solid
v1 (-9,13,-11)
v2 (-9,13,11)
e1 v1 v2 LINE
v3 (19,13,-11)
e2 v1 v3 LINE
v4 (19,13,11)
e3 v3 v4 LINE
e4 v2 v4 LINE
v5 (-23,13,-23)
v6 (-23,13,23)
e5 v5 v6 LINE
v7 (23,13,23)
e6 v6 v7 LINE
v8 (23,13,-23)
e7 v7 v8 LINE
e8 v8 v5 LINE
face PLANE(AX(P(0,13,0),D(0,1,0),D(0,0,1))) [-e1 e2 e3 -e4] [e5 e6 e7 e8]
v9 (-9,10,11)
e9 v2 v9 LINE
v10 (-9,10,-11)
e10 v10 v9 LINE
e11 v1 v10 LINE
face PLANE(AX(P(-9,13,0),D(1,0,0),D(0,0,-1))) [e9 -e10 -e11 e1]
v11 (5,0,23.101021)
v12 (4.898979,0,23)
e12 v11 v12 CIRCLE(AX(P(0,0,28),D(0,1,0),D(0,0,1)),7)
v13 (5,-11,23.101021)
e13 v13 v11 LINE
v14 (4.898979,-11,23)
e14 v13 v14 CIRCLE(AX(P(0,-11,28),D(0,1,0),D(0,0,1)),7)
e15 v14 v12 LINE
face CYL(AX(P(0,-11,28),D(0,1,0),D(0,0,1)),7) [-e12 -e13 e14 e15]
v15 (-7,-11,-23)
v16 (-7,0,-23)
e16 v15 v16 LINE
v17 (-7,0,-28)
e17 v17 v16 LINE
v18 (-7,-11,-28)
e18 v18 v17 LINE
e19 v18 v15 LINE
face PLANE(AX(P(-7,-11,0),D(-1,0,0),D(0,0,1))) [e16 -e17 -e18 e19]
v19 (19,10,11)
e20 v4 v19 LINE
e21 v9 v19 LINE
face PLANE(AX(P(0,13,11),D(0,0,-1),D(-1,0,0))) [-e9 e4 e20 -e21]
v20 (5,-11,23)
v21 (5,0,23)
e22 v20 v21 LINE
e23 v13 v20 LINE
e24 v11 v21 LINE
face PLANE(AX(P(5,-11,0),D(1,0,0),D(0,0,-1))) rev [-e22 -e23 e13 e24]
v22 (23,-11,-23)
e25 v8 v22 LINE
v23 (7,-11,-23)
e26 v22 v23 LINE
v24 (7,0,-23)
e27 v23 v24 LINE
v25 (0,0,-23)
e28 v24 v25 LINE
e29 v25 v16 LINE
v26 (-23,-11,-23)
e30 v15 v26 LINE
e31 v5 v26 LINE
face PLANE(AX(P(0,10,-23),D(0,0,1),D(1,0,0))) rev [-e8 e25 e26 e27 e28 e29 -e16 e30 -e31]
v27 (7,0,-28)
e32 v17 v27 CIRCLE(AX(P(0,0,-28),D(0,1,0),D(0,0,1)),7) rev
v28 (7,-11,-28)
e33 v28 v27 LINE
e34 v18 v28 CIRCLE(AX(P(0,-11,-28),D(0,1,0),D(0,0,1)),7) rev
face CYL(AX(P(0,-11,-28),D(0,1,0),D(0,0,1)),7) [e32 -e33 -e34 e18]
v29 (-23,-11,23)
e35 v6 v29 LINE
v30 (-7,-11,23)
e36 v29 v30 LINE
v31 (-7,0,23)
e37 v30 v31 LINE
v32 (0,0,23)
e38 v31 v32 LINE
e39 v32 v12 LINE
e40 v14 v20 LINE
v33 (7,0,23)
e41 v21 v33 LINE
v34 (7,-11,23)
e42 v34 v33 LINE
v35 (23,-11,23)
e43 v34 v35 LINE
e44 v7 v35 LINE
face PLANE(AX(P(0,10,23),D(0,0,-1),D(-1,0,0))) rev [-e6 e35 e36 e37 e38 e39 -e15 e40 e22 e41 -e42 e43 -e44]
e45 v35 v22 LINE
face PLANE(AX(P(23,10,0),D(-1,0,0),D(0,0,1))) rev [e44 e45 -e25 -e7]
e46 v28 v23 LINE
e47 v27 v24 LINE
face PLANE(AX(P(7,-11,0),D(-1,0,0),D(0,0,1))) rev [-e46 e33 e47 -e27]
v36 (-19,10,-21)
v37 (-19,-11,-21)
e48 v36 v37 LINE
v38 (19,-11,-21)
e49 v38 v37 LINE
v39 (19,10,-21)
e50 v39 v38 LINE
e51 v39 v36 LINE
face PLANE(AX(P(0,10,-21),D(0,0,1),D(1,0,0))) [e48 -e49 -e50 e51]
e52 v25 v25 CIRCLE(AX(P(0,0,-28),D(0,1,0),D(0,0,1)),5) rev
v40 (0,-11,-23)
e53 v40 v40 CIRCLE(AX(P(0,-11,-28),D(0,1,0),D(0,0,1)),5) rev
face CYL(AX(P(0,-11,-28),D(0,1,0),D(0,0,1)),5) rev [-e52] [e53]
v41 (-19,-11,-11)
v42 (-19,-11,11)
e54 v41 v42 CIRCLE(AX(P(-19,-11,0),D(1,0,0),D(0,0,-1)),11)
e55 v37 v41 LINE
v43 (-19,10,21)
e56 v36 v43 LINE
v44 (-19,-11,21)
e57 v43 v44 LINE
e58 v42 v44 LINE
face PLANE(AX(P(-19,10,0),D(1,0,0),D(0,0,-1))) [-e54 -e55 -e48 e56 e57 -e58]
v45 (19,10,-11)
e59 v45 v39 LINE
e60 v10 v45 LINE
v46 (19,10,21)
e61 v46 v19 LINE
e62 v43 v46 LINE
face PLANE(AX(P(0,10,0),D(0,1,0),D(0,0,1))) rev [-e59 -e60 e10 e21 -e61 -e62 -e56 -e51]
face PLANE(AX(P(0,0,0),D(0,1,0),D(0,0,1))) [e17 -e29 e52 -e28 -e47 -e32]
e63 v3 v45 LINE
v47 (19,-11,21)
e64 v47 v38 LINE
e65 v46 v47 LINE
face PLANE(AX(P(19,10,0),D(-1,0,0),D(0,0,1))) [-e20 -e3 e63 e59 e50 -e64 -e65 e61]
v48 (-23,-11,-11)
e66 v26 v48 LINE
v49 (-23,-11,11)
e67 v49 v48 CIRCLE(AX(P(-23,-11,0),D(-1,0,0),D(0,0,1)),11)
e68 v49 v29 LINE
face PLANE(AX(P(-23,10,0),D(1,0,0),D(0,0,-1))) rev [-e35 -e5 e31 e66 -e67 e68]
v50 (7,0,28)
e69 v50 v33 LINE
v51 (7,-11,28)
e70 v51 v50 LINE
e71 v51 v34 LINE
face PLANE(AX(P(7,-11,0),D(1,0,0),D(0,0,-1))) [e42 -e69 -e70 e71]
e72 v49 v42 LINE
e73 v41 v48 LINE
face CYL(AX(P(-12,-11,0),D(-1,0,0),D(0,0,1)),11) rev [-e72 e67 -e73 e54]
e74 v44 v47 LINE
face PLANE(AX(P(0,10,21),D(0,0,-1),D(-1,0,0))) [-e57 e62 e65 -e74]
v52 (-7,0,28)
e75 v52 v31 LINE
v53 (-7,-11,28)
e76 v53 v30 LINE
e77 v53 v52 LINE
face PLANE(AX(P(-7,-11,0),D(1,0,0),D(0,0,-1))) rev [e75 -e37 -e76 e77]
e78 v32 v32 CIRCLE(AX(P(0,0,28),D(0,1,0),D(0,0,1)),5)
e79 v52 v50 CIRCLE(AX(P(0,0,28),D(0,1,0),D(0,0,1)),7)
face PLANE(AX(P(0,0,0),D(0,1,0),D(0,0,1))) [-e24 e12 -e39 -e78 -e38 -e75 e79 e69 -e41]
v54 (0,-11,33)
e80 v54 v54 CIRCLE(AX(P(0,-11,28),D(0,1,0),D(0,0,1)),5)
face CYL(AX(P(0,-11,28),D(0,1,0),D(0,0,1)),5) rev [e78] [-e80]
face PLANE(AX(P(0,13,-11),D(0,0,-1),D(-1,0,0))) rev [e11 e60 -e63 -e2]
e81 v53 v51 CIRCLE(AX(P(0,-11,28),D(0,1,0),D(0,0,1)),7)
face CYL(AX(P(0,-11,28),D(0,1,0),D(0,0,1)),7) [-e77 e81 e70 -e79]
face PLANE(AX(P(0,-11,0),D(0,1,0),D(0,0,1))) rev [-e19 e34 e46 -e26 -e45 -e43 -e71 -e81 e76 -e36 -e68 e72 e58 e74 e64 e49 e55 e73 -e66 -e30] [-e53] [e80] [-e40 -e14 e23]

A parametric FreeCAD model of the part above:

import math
import FreeCAD as App
import Part
import Sketcher
Q = App.Units.Quantity

doc = App.newDocument("Part")
body = doc.addObject("PartDesign::Body", "Body")

sketch1 = doc.addObject("Sketcher::SketchObject", "Sketch")
body.addObject(sketch1)
sketch1.AttachmentSupport = (doc.XZ_Plane, [""])
sketch1.MapMode = "FlatFace"
sketch1.addGeometry([
    Part.LineSegment(App.Vector(-23, -23, 0), App.Vector(-23, 23, 0)),
    Part.LineSegment(App.Vector(-23, 23, 0), App.Vector(23, 23, 0)),
    Part.LineSegment(App.Vector(23, 23, 0), App.Vector(23, -23, 0)),
    Part.LineSegment(App.Vector(23, -23, 0), App.Vector(-23, -23, 0)),
    Part.LineSegment(App.Vector(-19, 21, 0), App.Vector(-19, -21, 0)),
    Part.LineSegment(App.Vector(-19, -21, 0), App.Vector(19, -21, 0)),
    Part.LineSegment(App.Vector(19, -21, 0), App.Vector(19, 21, 0)),
    Part.LineSegment(App.Vector(19, 21, 0), App.Vector(-19, 21, 0)),
], False)
sketch1.addConstraint([
    Sketcher.Constraint("Coincident", 0, 2, 1, 1),
    Sketcher.Constraint("Coincident", 1, 2, 2, 1),
    Sketcher.Constraint("Coincident", 2, 2, 3, 1),
    Sketcher.Constraint("Coincident", 3, 2, 0, 1),
    Sketcher.Constraint("Coincident", 4, 2, 5, 1),
    Sketcher.Constraint("Coincident", 5, 2, 6, 1),
    Sketcher.Constraint("Coincident", 6, 2, 7, 1),
    Sketcher.Constraint("Coincident", 7, 2, 4, 1),
    Sketcher.Constraint("Vertical", 0),
    Sketcher.Constraint("Horizontal", 1),
    Sketcher.Constraint("Vertical", 2),
    Sketcher.Constraint("Horizontal", 3),
    Sketcher.Constraint("Vertical", 4),
    Sketcher.Constraint("Horizontal", 5),
    Sketcher.Constraint("Vertical", 6),
    Sketcher.Constraint("Horizontal", 7),
    Sketcher.Constraint("Symmetric", 0, 2, 2, 2, -1, 1),
    Sketcher.Constraint("Symmetric", 4, 2, 6, 2, -1, 1),
    Sketcher.Constraint("Equal", 3, 0),
    Sketcher.Constraint("DistanceX", 1, 1, 1, 2, Q("46 mm")),
    Sketcher.Constraint("DistanceX", 5, 1, 5, 2, Q("38 mm")),
    Sketcher.Constraint("DistanceY", 4, 2, 4, 1, Q("42 mm")),
])
pad1 = doc.addObject("PartDesign::Pad", "Pad")
body.addObject(pad1)
pad1.Profile = sketch1
pad1.Length = 10
pad1.Reversed = True

sketch2 = doc.addObject("Sketcher::SketchObject", "Sketch001")
body.addObject(sketch2)
sketch2.AttachmentSupport = (doc.XZ_Plane, [""])
sketch2.MapMode = "FlatFace"
sketch2.AttachmentOffset = App.Placement(App.Vector(0, 0, -10), App.Rotation())
sketch2.addGeometry([
    Part.LineSegment(App.Vector(-23, -23, 0), App.Vector(-23, 23, 0)),
    Part.LineSegment(App.Vector(-23, 23, 0), App.Vector(23, 23, 0)),
    Part.LineSegment(App.Vector(23, 23, 0), App.Vector(23, -23, 0)),
    Part.LineSegment(App.Vector(23, -23, 0), App.Vector(-23, -23, 0)),
    Part.LineSegment(App.Vector(19, -11, 0), App.Vector(19, 11, 0)),
    Part.LineSegment(App.Vector(19, 11, 0), App.Vector(-9, 11, 0)),
    Part.LineSegment(App.Vector(-9, 11, 0), App.Vector(-9, -11, 0)),
    Part.LineSegment(App.Vector(-9, -11, 0), App.Vector(19, -11, 0)),
], False)
sketch2.addConstraint([
    Sketcher.Constraint("Coincident", 0, 2, 1, 1),
    Sketcher.Constraint("Coincident", 1, 2, 2, 1),
    Sketcher.Constraint("Coincident", 2, 2, 3, 1),
    Sketcher.Constraint("Coincident", 3, 2, 0, 1),
    Sketcher.Constraint("Coincident", 4, 2, 5, 1),
    Sketcher.Constraint("Coincident", 5, 2, 6, 1),
    Sketcher.Constraint("Coincident", 6, 2, 7, 1),
    Sketcher.Constraint("Coincident", 7, 2, 4, 1),
    Sketcher.Constraint("Vertical", 0),
    Sketcher.Constraint("Horizontal", 1),
    Sketcher.Constraint("Vertical", 2),
    Sketcher.Constraint("Horizontal", 3),
    Sketcher.Constraint("Vertical", 4),
    Sketcher.Constraint("Horizontal", 5),
    Sketcher.Constraint("Vertical", 6),
    Sketcher.Constraint("Horizontal", 7),
    Sketcher.Constraint("Symmetric", 0, 2, 2, 2, -1, 1),
    Sketcher.Constraint("Equal", 3, 0),
    Sketcher.Constraint("DistanceX", 1, 1, 1, 2, Q("46 mm")),
    Sketcher.Constraint("DistanceX", 5, 2, 5, 1, Q("28 mm")),
    Sketcher.Constraint("DistanceY", 4, 1, 4, 2, Q("22 mm")),
    Sketcher.Constraint("DistanceX", -1, 1, 4, 2, Q("19 mm")),
    Sketcher.Constraint("DistanceY", -1, 1, 4, 2, Q("11 mm")),
])
pad2 = doc.addObject("PartDesign::Pad", "Pad001")
body.addObject(pad2)
pad2.Profile = sketch2
pad2.Length = 3
pad2.Reversed = True

sketch3 = doc.addObject("Sketcher::SketchObject", "Sketch002")
body.addObject(sketch3)
sketch3.AttachmentSupport = (doc.XZ_Plane, [""])
sketch3.MapMode = "FlatFace"
sketch3.addGeometry([
    Part.LineSegment(App.Vector(7, 23, 0), App.Vector(23, 23, 0)),
    Part.LineSegment(App.Vector(23, 23, 0), App.Vector(23, -23, 0)),
    Part.LineSegment(App.Vector(23, -23, 0), App.Vector(7, -23, 0)),
    Part.LineSegment(App.Vector(7, -23, 0), App.Vector(7, -28, 0)),
    Part.ArcOfCircle(Part.Circle(App.Vector(0, -28, 0), App.Vector(0, 0, 1), 7), math.radians(180), math.radians(360)),
    Part.LineSegment(App.Vector(-7, -28, 0), App.Vector(-7, -23, 0)),
    Part.LineSegment(App.Vector(-7, -23, 0), App.Vector(-23, -23, 0)),
    Part.LineSegment(App.Vector(-23, -23, 0), App.Vector(-23, 23, 0)),
    Part.LineSegment(App.Vector(-23, 23, 0), App.Vector(-7, 23, 0)),
    Part.LineSegment(App.Vector(-7, 23, 0), App.Vector(-7, 28, 0)),
    Part.ArcOfCircle(Part.Circle(App.Vector(0, 28, 0), App.Vector(0, 0, 1), 7), math.radians(0), math.radians(180)),
    Part.LineSegment(App.Vector(7, 28, 0), App.Vector(7, 23, 0)),
    Part.LineSegment(App.Vector(-19, 21, 0), App.Vector(-19, -21, 0)),
    Part.LineSegment(App.Vector(-19, -21, 0), App.Vector(19, -21, 0)),
    Part.LineSegment(App.Vector(19, -21, 0), App.Vector(19, 21, 0)),
    Part.LineSegment(App.Vector(19, 21, 0), App.Vector(-19, 21, 0)),
    Part.LineSegment(App.Vector(4.9, 23, 0), App.Vector(5, 23, 0)),
    Part.LineSegment(App.Vector(5, 23, 0), App.Vector(5, 23.1, 0)),
    Part.ArcOfCircle(Part.Circle(App.Vector(0, 28, 0), App.Vector(0, 0, 1), 7), math.radians(-45.58), math.radians(-44.42)),
    Part.ArcOfCircle(Part.Circle(App.Vector(0, 28, 0), App.Vector(0, 0, 1), 5), math.radians(-90), math.radians(0)),
    Part.ArcOfCircle(Part.Circle(App.Vector(0, 28, 0), App.Vector(0, 0, 1), 5), math.radians(0), math.radians(270)),
    Part.ArcOfCircle(Part.Circle(App.Vector(0, -28, 0), App.Vector(0, 0, 1), 5), math.radians(90), math.radians(360)),
    Part.ArcOfCircle(Part.Circle(App.Vector(0, -28, 0), App.Vector(0, 0, 1), 5), math.radians(0), math.radians(90)),
], False)
sketch3.addConstraint([
    Sketcher.Constraint("Coincident", 0, 2, 1, 1),
    Sketcher.Constraint("Coincident", 1, 2, 2, 1),
    Sketcher.Constraint("Coincident", 2, 2, 3, 1),
    Sketcher.Constraint("Tangent", 3, 2, 4, 2),
    Sketcher.Constraint("Tangent", 4, 1, 5, 1),
    Sketcher.Constraint("Coincident", 5, 2, 6, 1),
    Sketcher.Constraint("Coincident", 6, 2, 7, 1),
    Sketcher.Constraint("Coincident", 7, 2, 8, 1),
    Sketcher.Constraint("Coincident", 8, 2, 9, 1),
    Sketcher.Constraint("Tangent", 9, 2, 10, 2),
    Sketcher.Constraint("Tangent", 10, 1, 11, 1),
    Sketcher.Constraint("Coincident", 11, 2, 0, 1),
    Sketcher.Constraint("Coincident", 12, 2, 13, 1),
    Sketcher.Constraint("Coincident", 13, 2, 14, 1),
    Sketcher.Constraint("Coincident", 14, 2, 15, 1),
    Sketcher.Constraint("Coincident", 15, 2, 12, 1),
    Sketcher.Constraint("Coincident", 16, 2, 17, 1),
    Sketcher.Constraint("Coincident", 17, 2, 18, 2),
    Sketcher.Constraint("Coincident", 18, 1, 16, 1),
    Sketcher.Constraint("Tangent", 19, 1, 20, 2),
    Sketcher.Constraint("Coincident", 20, 1, 19, 2),
    Sketcher.Constraint("Tangent", 21, 1, 22, 2),
    Sketcher.Constraint("Coincident", 22, 1, 21, 2),
    Sketcher.Constraint("Horizontal", 0),
    Sketcher.Constraint("Vertical", 1),
    Sketcher.Constraint("Horizontal", 2),
    Sketcher.Constraint("Vertical", 3),
    Sketcher.Constraint("Vertical", 5),
    Sketcher.Constraint("Horizontal", 6),
    Sketcher.Constraint("Vertical", 7),
    Sketcher.Constraint("Horizontal", 8),
    Sketcher.Constraint("Vertical", 9),
    Sketcher.Constraint("Vertical", 11),
    Sketcher.Constraint("Vertical", 12),
    Sketcher.Constraint("Horizontal", 13),
    Sketcher.Constraint("Vertical", 14),
    Sketcher.Constraint("Horizontal", 15),
    Sketcher.Constraint("Horizontal", 16),
    Sketcher.Constraint("Vertical", 17),
    Sketcher.Constraint("Coincident", 19, 3, 10, 3),
    Sketcher.Constraint("Coincident", 21, 3, 4, 3),
    Sketcher.Constraint("Equal", 4, 10),
    Sketcher.Constraint("Equal", 20, 21),
    Sketcher.Constraint("Symmetric", 4, 3, 10, 3, -1, 1),
    Sketcher.Constraint("Symmetric", 0, 2, 6, 2, -1, 1),
    Sketcher.Constraint("Symmetric", 12, 2, 14, 2, -1, 1),
    Sketcher.Constraint("Symmetric", 2, 2, 5, 2, -2),
    Sketcher.Constraint("PointOnObject", 19, 1, -2),
    Sketcher.Constraint("PointOnObject", 21, 1, -2),
    Sketcher.Constraint("Horizontal", 0, 2, 7, 2),
    Sketcher.Constraint("Horizontal", 11, 2, 16, 2),
    Sketcher.Constraint("Horizontal", 18, 1, 19, 1),
    Sketcher.Constraint("Horizontal", 10, 1, 20, 1),
    Sketcher.Constraint("Horizontal", 4, 1, 22, 1),
    Sketcher.Constraint("Vertical", 17, 2, 20, 1),
    Sketcher.Constraint("Equal", 16, 17),
    Sketcher.Constraint("Radius", 4, Q("7 mm")),
    Sketcher.Constraint("Radius", 19, Q("5 mm")),
    Sketcher.Constraint("DistanceX", 0, 1, 0, 2, Q("16 mm")),
    Sketcher.Constraint("DistanceX", 13, 1, 13, 2, Q("38 mm")),
    Sketcher.Constraint("DistanceY", 1, 2, 1, 1, Q("46 mm")),
    Sketcher.Constraint("DistanceY", 12, 2, 12, 1, Q("42 mm")),
    Sketcher.Constraint("Radius", 18, Q("7.000014 mm")),
    Sketcher.Constraint("DistanceX", 16, 1, 16, 2, Q("0.101021 mm")),
])
pad3 = doc.addObject("PartDesign::Pad", "Pad002")
body.addObject(pad3)
pad3.Profile = sketch3
pad3.Length = 11

sketch4 = doc.addObject("Sketcher::SketchObject", "Sketch003")
body.addObject(sketch4)
sketch4.AttachmentSupport = (doc.YZ_Plane, [""])
sketch4.MapMode = "FlatFace"
sketch4.AttachmentOffset = App.Placement(App.Vector(0, 0, -23), App.Rotation())
sketch4.addGeometry(Part.Circle(App.Vector(-11, 0, 0), App.Vector(0, 0, 1), 11), False)
sketch4.addConstraint([
    Sketcher.Constraint("PointOnObject", 0, 3, -1),
    Sketcher.Constraint("Diameter", 0, Q("22 mm")),
    Sketcher.Constraint("DistanceX", 0, 3, -1, 1, Q("11 mm")),
])
pocket1 = doc.addObject("PartDesign::Pocket", "Pocket")
body.addObject(pocket1)
pocket1.Profile = sketch4
pocket1.Length = 11
pocket1.Reversed = True

doc.recompute()
